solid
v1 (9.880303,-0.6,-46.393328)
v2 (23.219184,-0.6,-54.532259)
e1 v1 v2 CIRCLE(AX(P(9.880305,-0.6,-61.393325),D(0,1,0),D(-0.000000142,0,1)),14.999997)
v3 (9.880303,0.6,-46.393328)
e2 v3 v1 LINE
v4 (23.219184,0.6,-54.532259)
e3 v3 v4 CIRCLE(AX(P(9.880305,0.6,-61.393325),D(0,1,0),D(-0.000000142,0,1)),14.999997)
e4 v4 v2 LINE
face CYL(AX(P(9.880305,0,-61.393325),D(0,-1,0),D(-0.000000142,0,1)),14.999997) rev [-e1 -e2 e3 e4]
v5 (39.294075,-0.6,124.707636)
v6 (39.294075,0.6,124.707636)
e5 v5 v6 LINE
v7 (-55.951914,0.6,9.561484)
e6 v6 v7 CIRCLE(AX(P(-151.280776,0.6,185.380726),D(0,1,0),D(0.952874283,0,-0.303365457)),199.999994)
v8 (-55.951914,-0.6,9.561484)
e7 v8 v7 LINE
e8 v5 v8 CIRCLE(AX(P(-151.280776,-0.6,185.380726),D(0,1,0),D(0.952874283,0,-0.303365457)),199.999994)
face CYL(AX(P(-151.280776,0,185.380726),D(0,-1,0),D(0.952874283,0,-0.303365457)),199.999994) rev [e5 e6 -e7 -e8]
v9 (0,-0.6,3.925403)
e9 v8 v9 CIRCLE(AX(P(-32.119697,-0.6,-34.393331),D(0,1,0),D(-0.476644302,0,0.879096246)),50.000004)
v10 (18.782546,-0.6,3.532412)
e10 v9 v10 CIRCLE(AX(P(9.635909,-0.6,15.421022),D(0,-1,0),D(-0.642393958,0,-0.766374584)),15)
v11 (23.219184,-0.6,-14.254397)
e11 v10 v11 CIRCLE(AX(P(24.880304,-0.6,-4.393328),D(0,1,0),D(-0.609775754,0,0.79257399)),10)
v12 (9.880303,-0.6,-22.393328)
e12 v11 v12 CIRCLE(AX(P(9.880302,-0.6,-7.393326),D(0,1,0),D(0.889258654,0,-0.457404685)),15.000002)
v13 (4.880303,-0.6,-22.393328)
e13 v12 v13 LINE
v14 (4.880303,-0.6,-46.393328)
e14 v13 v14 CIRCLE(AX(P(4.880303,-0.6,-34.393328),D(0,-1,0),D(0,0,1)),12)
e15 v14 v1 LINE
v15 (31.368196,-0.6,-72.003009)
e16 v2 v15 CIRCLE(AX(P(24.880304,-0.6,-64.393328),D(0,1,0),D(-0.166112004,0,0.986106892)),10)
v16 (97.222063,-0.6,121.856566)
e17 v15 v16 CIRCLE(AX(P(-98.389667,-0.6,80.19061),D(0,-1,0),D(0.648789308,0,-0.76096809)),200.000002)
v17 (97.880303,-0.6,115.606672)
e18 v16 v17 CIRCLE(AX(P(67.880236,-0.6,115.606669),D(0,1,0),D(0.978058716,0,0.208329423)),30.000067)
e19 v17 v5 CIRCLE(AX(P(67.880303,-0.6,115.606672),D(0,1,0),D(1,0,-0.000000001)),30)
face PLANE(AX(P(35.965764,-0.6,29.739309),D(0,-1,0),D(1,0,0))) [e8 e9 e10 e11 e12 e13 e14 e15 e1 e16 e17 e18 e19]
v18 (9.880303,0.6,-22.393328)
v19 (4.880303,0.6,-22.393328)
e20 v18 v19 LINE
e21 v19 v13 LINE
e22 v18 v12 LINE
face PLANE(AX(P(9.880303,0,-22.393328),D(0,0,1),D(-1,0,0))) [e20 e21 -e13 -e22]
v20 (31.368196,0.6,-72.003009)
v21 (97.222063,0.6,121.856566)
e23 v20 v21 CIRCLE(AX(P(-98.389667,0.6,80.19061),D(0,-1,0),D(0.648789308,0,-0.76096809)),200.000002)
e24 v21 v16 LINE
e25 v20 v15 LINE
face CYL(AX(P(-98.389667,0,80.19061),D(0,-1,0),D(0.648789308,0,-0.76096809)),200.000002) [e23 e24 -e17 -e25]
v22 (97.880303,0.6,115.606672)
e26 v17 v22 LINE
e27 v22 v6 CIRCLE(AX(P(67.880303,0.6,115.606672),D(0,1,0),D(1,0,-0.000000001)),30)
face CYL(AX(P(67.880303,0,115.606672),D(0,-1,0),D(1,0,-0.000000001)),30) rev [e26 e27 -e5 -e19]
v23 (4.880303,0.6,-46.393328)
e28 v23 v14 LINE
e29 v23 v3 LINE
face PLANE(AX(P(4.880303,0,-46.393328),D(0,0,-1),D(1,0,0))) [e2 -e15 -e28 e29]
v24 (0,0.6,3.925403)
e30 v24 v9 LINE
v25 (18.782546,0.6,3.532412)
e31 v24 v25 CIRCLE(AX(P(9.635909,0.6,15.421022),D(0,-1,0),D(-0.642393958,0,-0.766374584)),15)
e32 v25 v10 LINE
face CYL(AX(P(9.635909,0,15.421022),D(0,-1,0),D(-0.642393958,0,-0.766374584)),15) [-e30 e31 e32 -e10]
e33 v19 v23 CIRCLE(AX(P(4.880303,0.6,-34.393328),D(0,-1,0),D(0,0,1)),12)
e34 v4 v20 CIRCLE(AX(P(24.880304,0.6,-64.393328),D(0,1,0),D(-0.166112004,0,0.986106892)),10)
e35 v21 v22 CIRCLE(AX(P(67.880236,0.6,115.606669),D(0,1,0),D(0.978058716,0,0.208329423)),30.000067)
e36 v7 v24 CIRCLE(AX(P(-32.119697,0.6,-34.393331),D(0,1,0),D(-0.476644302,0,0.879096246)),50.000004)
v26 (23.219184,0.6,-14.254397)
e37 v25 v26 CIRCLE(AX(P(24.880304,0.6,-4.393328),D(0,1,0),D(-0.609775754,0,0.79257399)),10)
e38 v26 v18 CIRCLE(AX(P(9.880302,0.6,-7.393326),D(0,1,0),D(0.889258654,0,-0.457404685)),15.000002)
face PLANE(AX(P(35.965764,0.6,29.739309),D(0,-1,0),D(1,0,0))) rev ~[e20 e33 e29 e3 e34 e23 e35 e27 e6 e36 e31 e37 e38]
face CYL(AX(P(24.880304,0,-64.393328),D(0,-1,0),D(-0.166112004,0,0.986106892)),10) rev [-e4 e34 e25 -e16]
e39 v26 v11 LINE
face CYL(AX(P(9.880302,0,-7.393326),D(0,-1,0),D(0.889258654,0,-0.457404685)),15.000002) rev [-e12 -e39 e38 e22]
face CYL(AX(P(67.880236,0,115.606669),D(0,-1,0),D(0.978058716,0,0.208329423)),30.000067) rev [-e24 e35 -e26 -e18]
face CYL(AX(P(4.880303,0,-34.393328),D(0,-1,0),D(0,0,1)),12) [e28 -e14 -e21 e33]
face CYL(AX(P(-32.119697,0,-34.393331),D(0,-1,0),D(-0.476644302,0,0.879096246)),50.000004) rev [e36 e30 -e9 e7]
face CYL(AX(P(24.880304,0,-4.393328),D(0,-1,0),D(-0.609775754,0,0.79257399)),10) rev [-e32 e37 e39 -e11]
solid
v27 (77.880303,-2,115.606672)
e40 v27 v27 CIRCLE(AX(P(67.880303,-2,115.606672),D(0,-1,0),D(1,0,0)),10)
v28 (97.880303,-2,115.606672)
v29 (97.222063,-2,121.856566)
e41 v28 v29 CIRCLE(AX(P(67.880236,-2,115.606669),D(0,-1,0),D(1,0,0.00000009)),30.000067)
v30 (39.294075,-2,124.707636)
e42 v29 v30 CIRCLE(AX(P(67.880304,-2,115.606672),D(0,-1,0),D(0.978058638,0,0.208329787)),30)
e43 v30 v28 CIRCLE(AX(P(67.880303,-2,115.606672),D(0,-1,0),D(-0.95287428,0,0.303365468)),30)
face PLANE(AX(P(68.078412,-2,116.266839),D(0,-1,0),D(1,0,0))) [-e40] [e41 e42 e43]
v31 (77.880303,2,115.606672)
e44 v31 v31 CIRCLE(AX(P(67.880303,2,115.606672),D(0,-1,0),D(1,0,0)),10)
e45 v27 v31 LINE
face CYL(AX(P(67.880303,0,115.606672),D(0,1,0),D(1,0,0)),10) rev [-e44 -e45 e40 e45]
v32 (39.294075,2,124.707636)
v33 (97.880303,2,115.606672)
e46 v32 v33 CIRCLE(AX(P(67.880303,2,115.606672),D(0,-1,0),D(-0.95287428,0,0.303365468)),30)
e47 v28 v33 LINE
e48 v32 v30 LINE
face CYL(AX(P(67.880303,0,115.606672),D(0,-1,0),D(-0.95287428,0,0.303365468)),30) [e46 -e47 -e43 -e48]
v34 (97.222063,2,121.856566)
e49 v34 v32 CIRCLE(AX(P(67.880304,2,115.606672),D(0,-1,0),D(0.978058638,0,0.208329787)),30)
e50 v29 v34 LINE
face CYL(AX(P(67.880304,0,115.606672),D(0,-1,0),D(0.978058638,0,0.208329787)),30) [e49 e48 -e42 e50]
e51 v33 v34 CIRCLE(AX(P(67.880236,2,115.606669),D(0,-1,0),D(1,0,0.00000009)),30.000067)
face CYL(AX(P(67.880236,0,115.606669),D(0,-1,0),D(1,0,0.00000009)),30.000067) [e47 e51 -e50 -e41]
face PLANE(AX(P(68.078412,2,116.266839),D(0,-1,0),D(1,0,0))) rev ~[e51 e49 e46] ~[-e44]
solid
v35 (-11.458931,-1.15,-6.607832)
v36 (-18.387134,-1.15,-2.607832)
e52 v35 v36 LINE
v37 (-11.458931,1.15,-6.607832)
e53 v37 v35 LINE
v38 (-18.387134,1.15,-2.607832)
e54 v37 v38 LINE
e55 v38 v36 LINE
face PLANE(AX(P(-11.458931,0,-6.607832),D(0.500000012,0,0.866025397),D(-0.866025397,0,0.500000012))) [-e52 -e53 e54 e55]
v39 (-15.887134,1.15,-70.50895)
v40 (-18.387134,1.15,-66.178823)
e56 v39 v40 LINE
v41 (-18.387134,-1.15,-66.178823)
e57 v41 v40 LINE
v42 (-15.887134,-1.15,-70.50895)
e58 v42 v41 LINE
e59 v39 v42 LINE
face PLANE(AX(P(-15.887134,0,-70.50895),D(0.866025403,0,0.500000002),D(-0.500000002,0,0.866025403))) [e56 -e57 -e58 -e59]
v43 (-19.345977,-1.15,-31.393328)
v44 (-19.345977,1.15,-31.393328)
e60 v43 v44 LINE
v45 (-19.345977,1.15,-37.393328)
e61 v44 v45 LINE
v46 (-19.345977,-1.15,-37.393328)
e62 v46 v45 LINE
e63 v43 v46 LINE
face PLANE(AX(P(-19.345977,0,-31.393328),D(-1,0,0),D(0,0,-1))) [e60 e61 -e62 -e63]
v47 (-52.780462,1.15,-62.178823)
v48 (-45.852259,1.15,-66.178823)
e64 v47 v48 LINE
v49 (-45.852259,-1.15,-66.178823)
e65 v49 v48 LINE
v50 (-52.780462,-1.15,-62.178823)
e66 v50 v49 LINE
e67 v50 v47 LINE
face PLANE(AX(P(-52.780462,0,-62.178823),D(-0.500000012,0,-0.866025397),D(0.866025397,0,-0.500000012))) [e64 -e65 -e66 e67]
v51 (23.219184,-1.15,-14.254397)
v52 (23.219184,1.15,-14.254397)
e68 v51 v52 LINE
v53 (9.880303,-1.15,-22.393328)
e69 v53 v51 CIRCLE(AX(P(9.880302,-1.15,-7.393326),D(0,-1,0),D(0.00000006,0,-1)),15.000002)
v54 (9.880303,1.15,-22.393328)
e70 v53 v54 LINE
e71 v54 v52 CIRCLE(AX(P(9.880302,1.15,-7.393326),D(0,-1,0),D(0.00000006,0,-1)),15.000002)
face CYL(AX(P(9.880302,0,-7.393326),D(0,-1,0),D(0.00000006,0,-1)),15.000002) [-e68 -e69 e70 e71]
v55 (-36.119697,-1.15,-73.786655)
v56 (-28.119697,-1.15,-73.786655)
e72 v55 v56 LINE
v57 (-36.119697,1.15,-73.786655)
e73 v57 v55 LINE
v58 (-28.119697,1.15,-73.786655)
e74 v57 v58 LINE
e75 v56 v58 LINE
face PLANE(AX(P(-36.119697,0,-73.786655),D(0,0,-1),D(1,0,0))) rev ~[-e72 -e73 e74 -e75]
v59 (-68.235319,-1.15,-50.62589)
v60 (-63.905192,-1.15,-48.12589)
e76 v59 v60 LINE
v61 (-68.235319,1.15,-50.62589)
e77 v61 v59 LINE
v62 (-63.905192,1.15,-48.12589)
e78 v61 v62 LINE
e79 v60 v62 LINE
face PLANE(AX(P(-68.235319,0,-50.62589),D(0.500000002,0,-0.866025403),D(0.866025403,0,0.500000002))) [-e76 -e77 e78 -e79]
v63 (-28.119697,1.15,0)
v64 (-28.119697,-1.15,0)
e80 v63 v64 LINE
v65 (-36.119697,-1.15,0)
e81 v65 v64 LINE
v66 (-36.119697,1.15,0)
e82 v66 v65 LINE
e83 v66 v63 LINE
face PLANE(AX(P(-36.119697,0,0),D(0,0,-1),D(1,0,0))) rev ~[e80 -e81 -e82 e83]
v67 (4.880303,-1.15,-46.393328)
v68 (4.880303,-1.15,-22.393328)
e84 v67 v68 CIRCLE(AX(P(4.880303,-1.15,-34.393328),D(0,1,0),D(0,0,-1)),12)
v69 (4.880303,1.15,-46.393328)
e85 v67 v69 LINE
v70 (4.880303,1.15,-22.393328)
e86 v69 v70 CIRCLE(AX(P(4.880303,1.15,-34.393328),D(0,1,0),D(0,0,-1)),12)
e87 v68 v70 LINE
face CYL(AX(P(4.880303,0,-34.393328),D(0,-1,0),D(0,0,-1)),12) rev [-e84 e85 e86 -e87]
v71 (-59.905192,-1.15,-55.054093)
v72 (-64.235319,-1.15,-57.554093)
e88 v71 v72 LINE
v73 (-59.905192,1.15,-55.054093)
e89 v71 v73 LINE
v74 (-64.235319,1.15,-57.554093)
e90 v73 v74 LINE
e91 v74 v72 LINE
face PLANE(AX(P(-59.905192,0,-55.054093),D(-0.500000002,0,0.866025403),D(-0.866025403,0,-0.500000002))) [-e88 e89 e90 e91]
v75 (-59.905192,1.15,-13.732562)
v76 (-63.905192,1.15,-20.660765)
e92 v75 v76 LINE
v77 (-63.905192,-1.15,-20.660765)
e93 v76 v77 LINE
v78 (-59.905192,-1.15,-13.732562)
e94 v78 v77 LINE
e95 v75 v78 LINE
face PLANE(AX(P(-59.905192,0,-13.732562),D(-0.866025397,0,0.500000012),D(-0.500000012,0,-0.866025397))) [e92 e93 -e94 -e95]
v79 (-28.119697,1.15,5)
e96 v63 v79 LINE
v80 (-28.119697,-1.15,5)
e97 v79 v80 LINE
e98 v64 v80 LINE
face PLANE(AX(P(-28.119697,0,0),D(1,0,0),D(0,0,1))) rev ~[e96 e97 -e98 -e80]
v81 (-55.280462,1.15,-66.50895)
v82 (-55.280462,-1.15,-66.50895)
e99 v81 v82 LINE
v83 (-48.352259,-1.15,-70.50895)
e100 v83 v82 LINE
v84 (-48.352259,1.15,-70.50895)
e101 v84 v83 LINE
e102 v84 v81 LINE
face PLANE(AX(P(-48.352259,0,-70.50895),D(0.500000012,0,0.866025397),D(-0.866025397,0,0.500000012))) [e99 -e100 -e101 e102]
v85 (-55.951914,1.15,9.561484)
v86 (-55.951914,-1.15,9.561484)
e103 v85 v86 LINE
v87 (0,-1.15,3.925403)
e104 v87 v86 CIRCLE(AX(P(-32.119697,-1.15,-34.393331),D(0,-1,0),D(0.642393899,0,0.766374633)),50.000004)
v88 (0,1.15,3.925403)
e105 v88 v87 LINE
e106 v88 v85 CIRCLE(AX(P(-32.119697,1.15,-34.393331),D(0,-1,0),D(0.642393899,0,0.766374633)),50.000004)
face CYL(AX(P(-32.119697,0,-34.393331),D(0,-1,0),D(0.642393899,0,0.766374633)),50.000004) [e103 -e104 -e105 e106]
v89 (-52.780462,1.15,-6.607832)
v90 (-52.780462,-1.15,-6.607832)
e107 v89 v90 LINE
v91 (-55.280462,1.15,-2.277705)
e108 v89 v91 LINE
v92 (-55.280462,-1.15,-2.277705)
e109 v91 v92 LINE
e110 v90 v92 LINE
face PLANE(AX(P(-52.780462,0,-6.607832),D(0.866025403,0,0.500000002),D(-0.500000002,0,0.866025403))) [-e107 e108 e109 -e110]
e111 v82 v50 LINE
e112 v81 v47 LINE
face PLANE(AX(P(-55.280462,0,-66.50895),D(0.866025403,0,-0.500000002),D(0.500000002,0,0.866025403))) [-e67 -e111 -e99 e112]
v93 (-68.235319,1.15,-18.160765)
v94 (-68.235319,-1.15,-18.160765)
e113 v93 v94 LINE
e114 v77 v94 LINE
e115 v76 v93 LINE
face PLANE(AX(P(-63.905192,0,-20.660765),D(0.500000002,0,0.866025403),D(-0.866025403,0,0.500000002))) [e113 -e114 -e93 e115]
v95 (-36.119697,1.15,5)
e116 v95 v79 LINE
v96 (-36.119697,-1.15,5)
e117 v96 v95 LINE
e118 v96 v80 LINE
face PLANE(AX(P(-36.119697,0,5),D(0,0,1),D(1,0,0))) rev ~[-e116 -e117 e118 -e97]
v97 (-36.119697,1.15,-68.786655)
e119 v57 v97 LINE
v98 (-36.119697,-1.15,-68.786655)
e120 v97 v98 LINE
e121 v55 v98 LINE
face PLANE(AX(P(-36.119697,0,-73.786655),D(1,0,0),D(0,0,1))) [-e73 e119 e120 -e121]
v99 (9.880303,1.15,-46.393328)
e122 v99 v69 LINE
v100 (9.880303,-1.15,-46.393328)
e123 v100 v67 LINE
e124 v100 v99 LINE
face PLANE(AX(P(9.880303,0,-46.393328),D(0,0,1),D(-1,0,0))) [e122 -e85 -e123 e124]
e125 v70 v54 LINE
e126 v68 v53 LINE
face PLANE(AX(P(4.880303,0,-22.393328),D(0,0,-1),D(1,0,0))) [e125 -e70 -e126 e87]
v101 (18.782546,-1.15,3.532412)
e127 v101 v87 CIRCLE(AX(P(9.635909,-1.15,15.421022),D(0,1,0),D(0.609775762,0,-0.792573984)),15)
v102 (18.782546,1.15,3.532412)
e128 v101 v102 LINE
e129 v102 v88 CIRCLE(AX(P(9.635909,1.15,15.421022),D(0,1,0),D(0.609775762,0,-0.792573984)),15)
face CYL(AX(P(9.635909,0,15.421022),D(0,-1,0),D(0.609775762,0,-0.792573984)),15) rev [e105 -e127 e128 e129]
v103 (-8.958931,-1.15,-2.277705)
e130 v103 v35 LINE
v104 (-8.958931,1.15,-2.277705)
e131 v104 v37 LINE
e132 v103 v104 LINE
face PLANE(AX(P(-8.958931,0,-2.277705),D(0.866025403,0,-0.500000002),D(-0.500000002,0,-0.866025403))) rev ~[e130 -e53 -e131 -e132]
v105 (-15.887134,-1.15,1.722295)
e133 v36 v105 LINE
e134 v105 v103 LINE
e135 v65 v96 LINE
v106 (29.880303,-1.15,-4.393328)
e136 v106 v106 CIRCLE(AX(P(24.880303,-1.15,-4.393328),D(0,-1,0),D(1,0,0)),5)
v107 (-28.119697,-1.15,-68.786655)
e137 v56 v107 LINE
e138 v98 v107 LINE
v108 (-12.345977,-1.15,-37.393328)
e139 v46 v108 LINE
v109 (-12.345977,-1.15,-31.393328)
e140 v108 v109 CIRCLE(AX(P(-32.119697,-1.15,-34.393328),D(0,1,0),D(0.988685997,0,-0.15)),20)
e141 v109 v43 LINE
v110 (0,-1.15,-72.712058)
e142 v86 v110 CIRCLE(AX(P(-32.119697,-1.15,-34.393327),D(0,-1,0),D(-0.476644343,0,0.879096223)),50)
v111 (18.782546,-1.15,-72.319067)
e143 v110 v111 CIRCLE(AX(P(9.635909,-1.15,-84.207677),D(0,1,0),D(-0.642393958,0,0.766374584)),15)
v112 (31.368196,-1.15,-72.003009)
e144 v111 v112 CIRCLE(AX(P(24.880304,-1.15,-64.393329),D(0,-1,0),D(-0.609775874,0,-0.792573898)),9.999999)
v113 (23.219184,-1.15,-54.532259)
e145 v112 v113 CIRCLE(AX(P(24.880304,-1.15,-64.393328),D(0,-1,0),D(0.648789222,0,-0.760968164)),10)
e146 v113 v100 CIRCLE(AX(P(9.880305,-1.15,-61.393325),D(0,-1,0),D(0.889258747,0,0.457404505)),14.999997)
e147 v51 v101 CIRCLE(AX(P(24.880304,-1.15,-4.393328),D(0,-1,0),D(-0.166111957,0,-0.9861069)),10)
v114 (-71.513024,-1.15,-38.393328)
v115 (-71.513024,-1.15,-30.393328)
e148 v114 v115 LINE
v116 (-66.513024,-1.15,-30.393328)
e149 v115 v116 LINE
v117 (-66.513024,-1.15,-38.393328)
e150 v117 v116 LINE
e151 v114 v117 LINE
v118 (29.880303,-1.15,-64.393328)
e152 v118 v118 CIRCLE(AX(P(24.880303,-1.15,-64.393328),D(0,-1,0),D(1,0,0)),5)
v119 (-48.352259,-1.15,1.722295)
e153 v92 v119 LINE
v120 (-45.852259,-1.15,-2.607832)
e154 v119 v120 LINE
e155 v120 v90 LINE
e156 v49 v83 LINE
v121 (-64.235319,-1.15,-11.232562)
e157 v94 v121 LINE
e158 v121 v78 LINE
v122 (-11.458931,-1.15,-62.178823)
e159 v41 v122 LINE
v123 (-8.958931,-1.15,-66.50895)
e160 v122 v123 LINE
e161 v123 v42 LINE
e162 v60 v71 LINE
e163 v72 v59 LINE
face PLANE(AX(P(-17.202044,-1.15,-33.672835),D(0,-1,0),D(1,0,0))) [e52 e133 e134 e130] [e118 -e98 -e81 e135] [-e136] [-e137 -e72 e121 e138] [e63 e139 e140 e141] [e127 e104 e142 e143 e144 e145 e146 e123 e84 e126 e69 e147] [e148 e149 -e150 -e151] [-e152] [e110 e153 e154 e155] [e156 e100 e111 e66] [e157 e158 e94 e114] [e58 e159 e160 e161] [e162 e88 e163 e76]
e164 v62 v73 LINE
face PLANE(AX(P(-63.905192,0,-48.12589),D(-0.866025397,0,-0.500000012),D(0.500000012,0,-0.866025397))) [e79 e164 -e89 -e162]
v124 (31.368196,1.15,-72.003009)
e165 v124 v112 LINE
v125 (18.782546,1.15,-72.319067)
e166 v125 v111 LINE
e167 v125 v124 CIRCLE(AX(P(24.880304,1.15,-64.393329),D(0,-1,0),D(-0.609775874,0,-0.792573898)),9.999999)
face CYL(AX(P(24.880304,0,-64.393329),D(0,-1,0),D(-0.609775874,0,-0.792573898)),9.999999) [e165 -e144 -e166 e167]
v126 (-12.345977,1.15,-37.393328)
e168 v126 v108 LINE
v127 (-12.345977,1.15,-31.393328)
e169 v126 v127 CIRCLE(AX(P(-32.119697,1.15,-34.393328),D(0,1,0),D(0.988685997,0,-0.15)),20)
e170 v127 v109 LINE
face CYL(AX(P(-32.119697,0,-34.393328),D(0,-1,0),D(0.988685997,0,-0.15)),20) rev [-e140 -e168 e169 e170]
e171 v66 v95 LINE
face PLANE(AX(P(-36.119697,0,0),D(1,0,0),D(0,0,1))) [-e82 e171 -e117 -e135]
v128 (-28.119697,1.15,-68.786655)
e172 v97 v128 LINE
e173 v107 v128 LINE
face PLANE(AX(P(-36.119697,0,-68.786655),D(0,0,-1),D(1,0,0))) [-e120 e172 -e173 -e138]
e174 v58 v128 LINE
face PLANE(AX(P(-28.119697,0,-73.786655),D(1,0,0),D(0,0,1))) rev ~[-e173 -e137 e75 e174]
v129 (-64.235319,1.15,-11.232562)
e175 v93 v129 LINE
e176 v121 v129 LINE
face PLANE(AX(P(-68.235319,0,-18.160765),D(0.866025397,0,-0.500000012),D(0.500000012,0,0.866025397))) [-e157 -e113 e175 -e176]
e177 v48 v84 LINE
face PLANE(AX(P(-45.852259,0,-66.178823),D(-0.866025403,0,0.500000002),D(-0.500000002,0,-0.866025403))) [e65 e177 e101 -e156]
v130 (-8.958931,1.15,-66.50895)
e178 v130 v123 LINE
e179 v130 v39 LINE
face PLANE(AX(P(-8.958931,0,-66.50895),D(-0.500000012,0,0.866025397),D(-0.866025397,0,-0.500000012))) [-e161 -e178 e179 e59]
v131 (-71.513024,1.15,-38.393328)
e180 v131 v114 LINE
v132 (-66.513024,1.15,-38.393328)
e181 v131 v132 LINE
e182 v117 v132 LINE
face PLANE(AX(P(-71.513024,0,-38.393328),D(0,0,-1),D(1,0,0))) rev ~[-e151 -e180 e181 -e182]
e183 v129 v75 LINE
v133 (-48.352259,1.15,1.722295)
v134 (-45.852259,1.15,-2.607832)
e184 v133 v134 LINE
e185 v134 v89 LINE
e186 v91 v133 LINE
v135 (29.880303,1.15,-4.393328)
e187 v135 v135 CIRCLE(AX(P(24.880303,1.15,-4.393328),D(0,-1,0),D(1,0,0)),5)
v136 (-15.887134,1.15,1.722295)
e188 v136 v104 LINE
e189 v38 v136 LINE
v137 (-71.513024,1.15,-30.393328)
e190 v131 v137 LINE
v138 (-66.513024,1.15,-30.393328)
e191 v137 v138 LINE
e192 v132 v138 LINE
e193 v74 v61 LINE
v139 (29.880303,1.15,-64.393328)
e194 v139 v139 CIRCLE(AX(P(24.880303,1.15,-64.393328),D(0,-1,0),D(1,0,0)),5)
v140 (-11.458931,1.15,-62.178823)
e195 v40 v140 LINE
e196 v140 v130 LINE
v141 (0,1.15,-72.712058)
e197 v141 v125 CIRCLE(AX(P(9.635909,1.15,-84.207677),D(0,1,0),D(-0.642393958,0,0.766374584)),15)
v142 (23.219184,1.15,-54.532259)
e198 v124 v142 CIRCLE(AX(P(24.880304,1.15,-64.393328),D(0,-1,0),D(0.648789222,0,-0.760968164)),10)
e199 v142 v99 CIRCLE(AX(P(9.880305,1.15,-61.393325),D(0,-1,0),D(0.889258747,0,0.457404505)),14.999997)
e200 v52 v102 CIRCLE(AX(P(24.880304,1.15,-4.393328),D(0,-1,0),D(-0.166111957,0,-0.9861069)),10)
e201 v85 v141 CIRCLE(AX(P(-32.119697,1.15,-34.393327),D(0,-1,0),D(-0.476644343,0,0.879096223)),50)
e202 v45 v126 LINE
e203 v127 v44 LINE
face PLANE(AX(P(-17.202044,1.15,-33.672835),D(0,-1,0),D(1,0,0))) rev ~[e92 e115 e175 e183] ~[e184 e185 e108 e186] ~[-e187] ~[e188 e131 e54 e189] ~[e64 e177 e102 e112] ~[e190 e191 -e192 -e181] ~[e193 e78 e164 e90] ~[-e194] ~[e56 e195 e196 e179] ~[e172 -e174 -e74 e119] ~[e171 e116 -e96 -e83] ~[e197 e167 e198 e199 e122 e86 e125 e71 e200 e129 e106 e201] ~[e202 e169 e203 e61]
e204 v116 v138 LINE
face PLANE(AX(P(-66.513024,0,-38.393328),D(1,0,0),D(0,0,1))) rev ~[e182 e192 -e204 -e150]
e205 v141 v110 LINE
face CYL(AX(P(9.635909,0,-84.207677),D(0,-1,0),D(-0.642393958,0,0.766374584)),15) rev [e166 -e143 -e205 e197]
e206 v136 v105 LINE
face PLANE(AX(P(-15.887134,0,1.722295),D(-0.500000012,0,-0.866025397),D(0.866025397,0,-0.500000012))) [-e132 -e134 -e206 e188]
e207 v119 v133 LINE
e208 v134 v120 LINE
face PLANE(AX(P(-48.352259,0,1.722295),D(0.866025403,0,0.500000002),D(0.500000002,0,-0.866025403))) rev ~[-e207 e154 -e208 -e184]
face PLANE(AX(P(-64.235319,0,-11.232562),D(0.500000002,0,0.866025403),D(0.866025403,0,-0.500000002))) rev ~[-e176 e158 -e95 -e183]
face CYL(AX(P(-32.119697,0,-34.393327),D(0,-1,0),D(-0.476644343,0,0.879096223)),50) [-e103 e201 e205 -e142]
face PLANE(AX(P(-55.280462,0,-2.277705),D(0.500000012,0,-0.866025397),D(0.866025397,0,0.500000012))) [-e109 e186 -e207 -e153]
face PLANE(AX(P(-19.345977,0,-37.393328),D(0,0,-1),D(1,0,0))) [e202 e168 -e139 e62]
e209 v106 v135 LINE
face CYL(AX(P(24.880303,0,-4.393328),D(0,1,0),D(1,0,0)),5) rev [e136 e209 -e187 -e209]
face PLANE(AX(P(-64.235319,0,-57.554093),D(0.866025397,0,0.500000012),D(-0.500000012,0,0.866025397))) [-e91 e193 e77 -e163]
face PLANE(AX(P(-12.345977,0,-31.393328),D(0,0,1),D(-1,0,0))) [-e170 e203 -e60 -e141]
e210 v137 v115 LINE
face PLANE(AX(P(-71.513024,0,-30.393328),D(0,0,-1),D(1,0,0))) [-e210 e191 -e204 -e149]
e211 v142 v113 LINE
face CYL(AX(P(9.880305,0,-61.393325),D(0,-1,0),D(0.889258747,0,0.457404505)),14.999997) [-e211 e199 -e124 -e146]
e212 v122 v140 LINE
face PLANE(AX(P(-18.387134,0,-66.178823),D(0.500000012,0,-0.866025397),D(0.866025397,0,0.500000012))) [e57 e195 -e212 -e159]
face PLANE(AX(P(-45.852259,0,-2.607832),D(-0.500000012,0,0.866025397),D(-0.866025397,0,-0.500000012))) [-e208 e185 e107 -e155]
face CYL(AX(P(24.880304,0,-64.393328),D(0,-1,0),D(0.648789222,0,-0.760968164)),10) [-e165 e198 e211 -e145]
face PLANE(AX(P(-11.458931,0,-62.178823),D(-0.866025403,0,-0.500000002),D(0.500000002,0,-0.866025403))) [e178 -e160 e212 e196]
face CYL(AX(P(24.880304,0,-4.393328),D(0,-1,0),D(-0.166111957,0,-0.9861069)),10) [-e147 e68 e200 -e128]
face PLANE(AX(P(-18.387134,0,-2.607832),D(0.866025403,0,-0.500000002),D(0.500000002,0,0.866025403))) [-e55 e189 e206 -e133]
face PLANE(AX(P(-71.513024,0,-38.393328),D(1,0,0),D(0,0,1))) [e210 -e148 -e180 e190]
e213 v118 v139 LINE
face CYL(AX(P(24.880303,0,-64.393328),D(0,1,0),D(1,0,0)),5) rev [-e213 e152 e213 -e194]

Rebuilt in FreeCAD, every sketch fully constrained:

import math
import FreeCAD as App
import Part
import Sketcher

V = App.Vector
Q = App.Units.Quantity

doc = App.newDocument("Part")
body = doc.addObject("PartDesign::Body", "Body")

sketch1 = body.newObject("Sketcher::SketchObject", "Sketch")
sketch1.AttachmentSupport = (doc.getObject("XZ_Plane"), [""])
sketch1.MapMode = "FlatFace"
sketch1.addGeometry(Part.ArcOfCircle(Part.Circle(V(9.6, 15.4, 0), V(0, 0, 1), 15), math.radians(-130), math.radians(-52)), False)
sketch1.addGeometry(Part.ArcOfCircle(Part.Circle(V(-32.1, -34.4, 0), V(0, 0, 1), 50), math.radians(50), math.radians(118)), False)
sketch1.addGeometry(Part.ArcOfCircle(Part.Circle(V(-32.1, -34.4, 0), V(0, 0, 1), 50), math.radians(118), math.radians(310)), False)
sketch1.addGeometry(Part.ArcOfCircle(Part.Circle(V(9.6, -84.2, 0), V(0, 0, 1), 15), math.radians(52), math.radians(130)), False)
sketch1.addGeometry(Part.ArcOfCircle(Part.Circle(V(24.9, -64.4, 0), V(0, 0, 1), 10), math.radians(-128), math.radians(-50)), False)
sketch1.addGeometry(Part.ArcOfCircle(Part.Circle(V(24.9, -64.4, 0), V(0, 0, 1), 10), math.radians(-50), math.radians(100)), False)
sketch1.addGeometry(Part.ArcOfCircle(Part.Circle(V(9.9, -61.4, 0), V(0, 0, 1), 15), math.radians(27), math.radians(90)), False)
sketch1.addGeometry(Part.LineSegment(V(9.9, -46.4, 0), V(4.9, -46.4, 0)), False)
sketch1.addGeometry(Part.ArcOfCircle(Part.Circle(V(4.9, -34.4, 0), V(0, 0, 1), 12), math.radians(90), math.radians(270)), False)
sketch1.addGeometry(Part.LineSegment(V(4.9, -22.4, 0), V(9.9, -22.4, 0)), False)
sketch1.addGeometry(Part.ArcOfCircle(Part.Circle(V(9.9, -7.4, 0), V(0, 0, 1), 15), math.radians(-90), math.radians(-27)), False)
sketch1.addGeometry(Part.ArcOfCircle(Part.Circle(V(24.9, -4.4, 0), V(0, 0, 1), 10), math.radians(-100), math.radians(128)), False)
sketch1.addGeometry(Part.LineSegment(V(-45.9, -66.2, 0), V(-48.4, -70.5, 0)), False)
sketch1.addGeometry(Part.LineSegment(V(-48.4, -70.5, 0), V(-55.3, -66.5, 0)), False)
sketch1.addGeometry(Part.LineSegment(V(-55.3, -66.5, 0), V(-52.8, -62.2, 0)), False)
sketch1.addGeometry(Part.LineSegment(V(-52.8, -62.2, 0), V(-45.9, -66.2, 0)), False)
sketch1.addGeometry(Part.LineSegment(V(-28.1, -73.8, 0), V(-36.1, -73.8, 0)), False)
sketch1.addGeometry(Part.LineSegment(V(-36.1, -73.8, 0), V(-36.1, -68.8, 0)), False)
sketch1.addGeometry(Part.LineSegment(V(-36.1, -68.8, 0), V(-28.1, -68.8, 0)), False)
sketch1.addGeometry(Part.LineSegment(V(-28.1, -68.8, 0), V(-28.1, -73.8, 0)), False)
sketch1.addGeometry(Part.LineSegment(V(-59.9, -55.1, 0), V(-64.2, -57.6, 0)), False)
sketch1.addGeometry(Part.LineSegment(V(-64.2, -57.6, 0), V(-68.2, -50.6, 0)), False)
sketch1.addGeometry(Part.LineSegment(V(-68.2, -50.6, 0), V(-63.9, -48.1, 0)), False)
sketch1.addGeometry(Part.LineSegment(V(-63.9, -48.1, 0), V(-59.9, -55.1, 0)), False)
sketch1.addGeometry(Part.LineSegment(V(-66.5, -38.4, 0), V(-71.5, -38.4, 0)), False)
sketch1.addGeometry(Part.LineSegment(V(-71.5, -38.4, 0), V(-71.5, -30.4, 0)), False)
sketch1.addGeometry(Part.LineSegment(V(-71.5, -30.4, 0), V(-66.5, -30.4, 0)), False)
sketch1.addGeometry(Part.LineSegment(V(-66.5, -30.4, 0), V(-66.5, -38.4, 0)), False)
sketch1.addGeometry(Part.LineSegment(V(-19.3, -37.4, 0), V(-12.3, -37.4, 0)), False)
sketch1.addGeometry(Part.ArcOfCircle(Part.Circle(V(-32.1, -34.4, 0), V(0, 0, 1), 20), math.radians(9), math.radians(351)), False)
sketch1.addGeometry(Part.LineSegment(V(-12.3, -31.4, 0), V(-19.3, -31.4, 0)), False)
sketch1.addGeometry(Part.LineSegment(V(-19.3, -31.4, 0), V(-19.3, -37.4, 0)), False)
sketch1.addGeometry(Part.LineSegment(V(-11.5, -62.2, 0), V(-9, -66.5, 0)), False)
sketch1.addGeometry(Part.LineSegment(V(-9, -66.5, 0), V(-15.9, -70.5, 0)), False)
sketch1.addGeometry(Part.LineSegment(V(-15.9, -70.5, 0), V(-18.4, -66.2, 0)), False)
sketch1.addGeometry(Part.LineSegment(V(-18.4, -66.2, 0), V(-11.5, -62.2, 0)), False)
sketch1.addGeometry(Part.Circle(V(24.9, -64.4, 0), V(0, 0, 1), 5), False)
sketch1.addGeometry(Part.LineSegment(V(-63.9, -20.7, 0), V(-68.2, -18.2, 0)), False)
sketch1.addGeometry(Part.LineSegment(V(-68.2, -18.2, 0), V(-64.2, -11.2, 0)), False)
sketch1.addGeometry(Part.LineSegment(V(-64.2, -11.2, 0), V(-59.9, -13.7, 0)), False)
sketch1.addGeometry(Part.LineSegment(V(-59.9, -13.7, 0), V(-63.9, -20.7, 0)), False)
sketch1.addGeometry(Part.LineSegment(V(-52.8, -6.6, 0), V(-55.3, -2.3, 0)), False)
sketch1.addGeometry(Part.LineSegment(V(-55.3, -2.3, 0), V(-48.4, 1.7, 0)), False)
sketch1.addGeometry(Part.LineSegment(V(-48.4, 1.7, 0), V(-45.9, -2.6, 0)), False)
sketch1.addGeometry(Part.LineSegment(V(-45.9, -2.6, 0), V(-52.8, -6.6, 0)), False)
sketch1.addGeometry(Part.LineSegment(V(-28.1, 0, 0), V(-36.1, 0, 0)), False)
sketch1.addGeometry(Part.LineSegment(V(-36.1, 0, 0), V(-36.1, 5, 0)), False)
sketch1.addGeometry(Part.LineSegment(V(-36.1, 5, 0), V(-28.1, 5, 0)), False)
sketch1.addGeometry(Part.LineSegment(V(-28.1, 5, 0), V(-28.1, 0, 0)), False)
sketch1.addGeometry(Part.LineSegment(V(-18.4, -2.6, 0), V(-15.9, 1.7, 0)), False)
sketch1.addGeometry(Part.LineSegment(V(-15.9, 1.7, 0), V(-9, -2.3, 0)), False)
sketch1.addGeometry(Part.LineSegment(V(-9, -2.3, 0), V(-11.5, -6.6, 0)), False)
sketch1.addGeometry(Part.LineSegment(V(-11.5, -6.6, 0), V(-18.4, -2.6, 0)), False)
sketch1.addGeometry(Part.Circle(V(24.9, -4.4, 0), V(0, 0, 1), 5), False)
sketch1.addConstraint(Sketcher.Constraint("Tangent", 0, 1, 1, 1))
sketch1.addConstraint(Sketcher.Constraint("Tangent", 1, 2, 2, 1))
sketch1.addConstraint(Sketcher.Constraint("Tangent", 2, 2, 3, 2))
sketch1.addConstraint(Sketcher.Constraint("Tangent", 3, 1, 4, 1))
sketch1.addConstraint(Sketcher.Constraint("Tangent", 4, 2, 5, 1))
sketch1.addConstraint(Sketcher.Constraint("Coincident", 5, 2, 6, 1))
sketch1.addConstraint(Sketcher.Constraint("Tangent", 6, 2, 7, 1))
sketch1.addConstraint(Sketcher.Constraint("Tangent", 7, 2, 8, 2))
sketch1.addConstraint(Sketcher.Constraint("Tangent", 8, 1, 9, 1))
sketch1.addConstraint(Sketcher.Constraint("Tangent", 9, 2, 10, 1))
sketch1.addConstraint(Sketcher.Constraint("Coincident", 10, 2, 11, 1))
sketch1.addConstraint(Sketcher.Constraint("Tangent", 11, 2, 0, 2))
sketch1.addConstraint(Sketcher.Constraint("Coincident", 12, 2, 13, 1))
sketch1.addConstraint(Sketcher.Constraint("Coincident", 13, 2, 14, 1))
sketch1.addConstraint(Sketcher.Constraint("Coincident", 14, 2, 15, 1))
sketch1.addConstraint(Sketcher.Constraint("Coincident", 15, 2, 12, 1))
sketch1.addConstraint(Sketcher.Constraint("Coincident", 16, 2, 17, 1))
sketch1.addConstraint(Sketcher.Constraint("Coincident", 17, 2, 18, 1))
sketch1.addConstraint(Sketcher.Constraint("Coincident", 18, 2, 19, 1))
sketch1.addConstraint(Sketcher.Constraint("Coincident", 19, 2, 16, 1))
sketch1.addConstraint(Sketcher.Constraint("Coincident", 20, 2, 21, 1))
sketch1.addConstraint(Sketcher.Constraint("Coincident", 21, 2, 22, 1))
sketch1.addConstraint(Sketcher.Constraint("Coincident", 22, 2, 23, 1))
sketch1.addConstraint(Sketcher.Constraint("Coincident", 23, 2, 20, 1))
sketch1.addConstraint(Sketcher.Constraint("Coincident", 24, 2, 25, 1))
sketch1.addConstraint(Sketcher.Constraint("Coincident", 25, 2, 26, 1))
sketch1.addConstraint(Sketcher.Constraint("Coincident", 26, 2, 27, 1))
sketch1.addConstraint(Sketcher.Constraint("Coincident", 27, 2, 24, 1))
sketch1.addConstraint(Sketcher.Constraint("Coincident", 28, 2, 29, 2))
sketch1.addConstraint(Sketcher.Constraint("Coincident", 29, 1, 30, 1))
sketch1.addConstraint(Sketcher.Constraint("Coincident", 30, 2, 31, 1))
sketch1.addConstraint(Sketcher.Constraint("Coincident", 31, 2, 28, 1))
sketch1.addConstraint(Sketcher.Constraint("Coincident", 32, 2, 33, 1))
sketch1.addConstraint(Sketcher.Constraint("Coincident", 33, 2, 34, 1))
sketch1.addConstraint(Sketcher.Constraint("Coincident", 34, 2, 35, 1))
sketch1.addConstraint(Sketcher.Constraint("Coincident", 35, 2, 32, 1))
sketch1.addConstraint(Sketcher.Constraint("Coincident", 37, 2, 38, 1))
sketch1.addConstraint(Sketcher.Constraint("Coincident", 38, 2, 39, 1))
sketch1.addConstraint(Sketcher.Constraint("Coincident", 39, 2, 40, 1))
sketch1.addConstraint(Sketcher.Constraint("Coincident", 40, 2, 37, 1))
sketch1.addConstraint(Sketcher.Constraint("Coincident", 41, 2, 42, 1))
sketch1.addConstraint(Sketcher.Constraint("Coincident", 42, 2, 43, 1))
sketch1.addConstraint(Sketcher.Constraint("Coincident", 43, 2, 44, 1))
sketch1.addConstraint(Sketcher.Constraint("Coincident", 44, 2, 41, 1))
sketch1.addConstraint(Sketcher.Constraint("Coincident", 45, 2, 46, 1))
sketch1.addConstraint(Sketcher.Constraint("Coincident", 46, 2, 47, 1))
sketch1.addConstraint(Sketcher.Constraint("Coincident", 47, 2, 48, 1))
sketch1.addConstraint(Sketcher.Constraint("Coincident", 48, 2, 45, 1))
sketch1.addConstraint(Sketcher.Constraint("Coincident", 49, 2, 50, 1))
sketch1.addConstraint(Sketcher.Constraint("Coincident", 50, 2, 51, 1))
sketch1.addConstraint(Sketcher.Constraint("Coincident", 51, 2, 52, 1))
sketch1.addConstraint(Sketcher.Constraint("Coincident", 52, 2, 49, 1))
sketch1.addConstraint(Sketcher.Constraint("Horizontal", 7))
sketch1.addConstraint(Sketcher.Constraint("Horizontal", 9))
sketch1.addConstraint(Sketcher.Constraint("Horizontal", 16))
sketch1.addConstraint(Sketcher.Constraint("Vertical", 17))
sketch1.addConstraint(Sketcher.Constraint("Horizontal", 18))
sketch1.addConstraint(Sketcher.Constraint("Vertical", 19))
sketch1.addConstraint(Sketcher.Constraint("Horizontal", 24))
sketch1.addConstraint(Sketcher.Constraint("Vertical", 25))
sketch1.addConstraint(Sketcher.Constraint("Horizontal", 26))
sketch1.addConstraint(Sketcher.Constraint("Vertical", 27))
sketch1.addConstraint(Sketcher.Constraint("Horizontal", 28))
sketch1.addConstraint(Sketcher.Constraint("Horizontal", 30))
sketch1.addConstraint(Sketcher.Constraint("Vertical", 31))
sketch1.addConstraint(Sketcher.Constraint("Horizontal", 45))
sketch1.addConstraint(Sketcher.Constraint("Vertical", 46))
sketch1.addConstraint(Sketcher.Constraint("Horizontal", 47))
sketch1.addConstraint(Sketcher.Constraint("Vertical", 48))
sketch1.addConstraint(Sketcher.Constraint("Coincident", 29, 3, 1, 3))
sketch1.addConstraint(Sketcher.Constraint("Coincident", 36, 3, 4, 3))
sketch1.addConstraint(Sketcher.Constraint("Coincident", 53, 3, 11, 3))
sketch1.addConstraint(Sketcher.Constraint("Equal", 0, 3))
sketch1.addConstraint(Sketcher.Constraint("Equal", 4, 5))
sketch1.addConstraint(Sketcher.Constraint("Equal", 5, 11))
sketch1.addConstraint(Sketcher.Constraint("Equal", 36, 53))
sketch1.addConstraint(Sketcher.Constraint("PointOnObject", 0, 1, -2))
sketch1.addConstraint(Sketcher.Constraint("PointOnObject", 2, 2, -2))
sketch1.addConstraint(Sketcher.Constraint("PointOnObject", 45, 2, -1))
sketch1.addConstraint(Sketcher.Constraint("Perpendicular", 12, 13))
sketch1.addConstraint(Sketcher.Constraint("Perpendicular", 13, 14))
sketch1.addConstraint(Sketcher.Constraint("Perpendicular", 14, 15))
sketch1.addConstraint(Sketcher.Constraint("Perpendicular", 20, 21))
sketch1.addConstraint(Sketcher.Constraint("Perpendicular", 21, 22))
sketch1.addConstraint(Sketcher.Constraint("Perpendicular", 22, 23))
sketch1.addConstraint(Sketcher.Constraint("Parallel", 23, 32))
sketch1.addConstraint(Sketcher.Constraint("Perpendicular", 32, 33))
sketch1.addConstraint(Sketcher.Constraint("Perpendicular", 33, 34))
sketch1.addConstraint(Sketcher.Constraint("Perpendicular", 34, 35))
sketch1.addConstraint(Sketcher.Constraint("Parallel", 15, 37))
sketch1.addConstraint(Sketcher.Constraint("Perpendicular", 37, 38))
sketch1.addConstraint(Sketcher.Constraint("Perpendicular", 38, 39))
sketch1.addConstraint(Sketcher.Constraint("Perpendicular", 39, 40))
sketch1.addConstraint(Sketcher.Constraint("Perpendicular", 35, 41))
sketch1.addConstraint(Sketcher.Constraint("Perpendicular", 41, 42))
sketch1.addConstraint(Sketcher.Constraint("Perpendicular", 42, 43))
sketch1.addConstraint(Sketcher.Constraint("Perpendicular", 43, 44))
sketch1.addConstraint(Sketcher.Constraint("Parallel", 40, 49))
sketch1.addConstraint(Sketcher.Constraint("Perpendicular", 49, 50))
sketch1.addConstraint(Sketcher.Constraint("Perpendicular", 50, 51))
sketch1.addConstraint(Sketcher.Constraint("Perpendicular", 51, 52))
sketch1.addConstraint(Sketcher.Constraint("Horizontal", 2, 3, 8, 3))
sketch1.addConstraint(Sketcher.Constraint("Horizontal", 8, 3, 29, 3))
sketch1.addConstraint(Sketcher.Constraint("Horizontal", 13, 2, 32, 2))
sketch1.addConstraint(Sketcher.Constraint("Horizontal", 12, 2, 33, 2))
sketch1.addConstraint(Sketcher.Constraint("Horizontal", 15, 2, 34, 2))
sketch1.addConstraint(Sketcher.Constraint("Horizontal", 42, 2, 49, 2))
sketch1.addConstraint(Sketcher.Constraint("Horizontal", 41, 2, 50, 2))
sketch1.addConstraint(Sketcher.Constraint("Horizontal", 44, 2, 51, 2))
sketch1.addConstraint(Sketcher.Constraint("Vertical", 5, 3, 11, 3))
sketch1.addConstraint(Sketcher.Constraint("Vertical", 10, 3, 6, 2))
sketch1.addConstraint(Sketcher.Constraint("Vertical", 5, 2, 10, 2))
sketch1.addConstraint(Sketcher.Constraint("Vertical", 28, 2, 29, 1))
sketch1.addConstraint(Sketcher.Constraint("Vertical", 21, 2, 37, 2))
sketch1.addConstraint(Sketcher.Constraint("Vertical", 20, 2, 38, 2))
sketch1.addConstraint(Sketcher.Constraint("Vertical", 23, 2, 39, 2))
sketch1.addConstraint(Sketcher.Constraint("Vertical", 13, 2, 41, 2))
sketch1.addConstraint(Sketcher.Constraint("Vertical", 12, 2, 42, 2))
sketch1.addConstraint(Sketcher.Constraint("Vertical", 15, 2, 43, 2))
sketch1.addConstraint(Sketcher.Constraint("Vertical", 17, 2, 45, 2))
sketch1.addConstraint(Sketcher.Constraint("Vertical", 19, 2, 47, 2))
sketch1.addConstraint(Sketcher.Constraint("Vertical", 33, 2, 49, 2))
sketch1.addConstraint(Sketcher.Constraint("Vertical", 32, 2, 50, 2))
sketch1.addConstraint(Sketcher.Constraint("Equal", 9, 24))
sketch1.addConstraint(Sketcher.Constraint("Equal", 26, 17))
sketch1.addConstraint(Sketcher.Constraint("Equal", 47, 25))
sketch1.addConstraint(Sketcher.Constraint("Equal", 19, 46))
sketch1.addConstraint(Sketcher.Constraint("Equal", 14, 20))
sketch1.addConstraint(Sketcher.Constraint("Equal", 15, 21))
sketch1.addConstraint(Sketcher.Constraint("Diameter", 36, 10.0))
sketch1.addConstraint(Sketcher.Constraint("Radius", 0, 15.0))
sketch1.addConstraint(Sketcher.Constraint("Radius", 2, 50.0))
sketch1.addConstraint(Sketcher.Constraint("Radius", 4, 9.999999))
sketch1.addConstraint(Sketcher.Constraint("Radius", 8, 12.0))
sketch1.addConstraint(Sketcher.Constraint("Radius", 29, 20.0))
sketch1.addConstraint(Sketcher.Constraint("DistanceX", 7, 2, 7, 1, 5.0))
sketch1.addConstraint(Sketcher.Constraint("DistanceX", 16, 2, 16, 1, 8.0))
sketch1.addConstraint(Sketcher.Constraint("DistanceX", 28, 1, 28, 2, 7.0))
sketch1.addConstraint(Sketcher.Constraint("DistanceY", 31, 2, 31, 1, 6.0))
sketch1.addConstraint(Sketcher.Constraint("Angle", 12, Q("-120 deg")))
sketch1.addConstraint(Sketcher.Constraint("Distance", 12, 5.0))
sketch1.addConstraint(Sketcher.Constraint("Distance", 13, 8.0))
sketch1.addConstraint(Sketcher.Constraint("Radius", 6, 14.999997))
sketch1.addConstraint(Sketcher.Constraint("DistanceX", -1, 1, 0, 3, 9.635909))
sketch1.addConstraint(Sketcher.Constraint("DistanceY", -1, 1, 0, 3, 15.421022))
sketch1.addConstraint(Sketcher.Constraint("DistanceY", 4, 3, -1, 1, 64.393329))
sketch1.addConstraint(Sketcher.Constraint("DistanceY", 4, 2, -1, 1, 72.003009))
sketch1.addConstraint(Sketcher.Constraint("DistanceY", 5, 2, -1, 1, 54.532259))
sketch1.addConstraint(Sketcher.Constraint("DistanceX", 12, 2, -1, 1, 48.352259))
sketch1.addConstraint(Sketcher.Constraint("DistanceY", 12, 2, -1, 1, 70.50895))
sketch1.addConstraint(Sketcher.Constraint("DistanceX", 20, 2, -1, 1, 64.235319))
sketch1.addConstraint(Sketcher.Constraint("DistanceY", 21, 2, -1, 1, 50.62589))
sketch1.addConstraint(Sketcher.Constraint("DistanceY", 25, 2, -1, 1, 30.393328))
sketch1.addConstraint(Sketcher.Constraint("DistanceX", 32, 2, -1, 1, 8.958931))
sketch1.addConstraint(Sketcher.Constraint("DistanceX", 1, 2, -1, 1, 55.951914))
sketch1.addConstraint(Sketcher.Constraint("DistanceX", 16, 2, -1, 1, 36.119697))
sketch1.addConstraint(Sketcher.Constraint("DistanceY", 16, 2, -1, 1, 73.786655))
sketch1.addConstraint(Sketcher.Constraint("DistanceX", 24, 2, -1, 1, 71.513024))
sketch1.addConstraint(Sketcher.Constraint("DistanceY", 37, 2, -1, 1, 18.160765))
sketch1.addConstraint(Sketcher.Constraint("DistanceY", 41, 2, -1, 1, 2.277705))
pad1 = body.newObject("PartDesign::Pad", "Pad")
pad1.Profile = sketch1
pad1.Length = 2.3
pad1.Midplane = True
body2 = doc.addObject("PartDesign::Body", "Body001")

sketch2 = body2.newObject("Sketcher::SketchObject", "Sketch001")
sketch2.AttachmentSupport = (doc.getObject("XZ_Plane001"), [""])
sketch2.MapMode = "FlatFace"
sketch2.addGeometry(Part.ArcOfCircle(Part.Circle(V(67.880304, 115.606672, 0), V(0, 0, 1), 30), math.radians(12.024491), math.radians(162.340147)), False)
sketch2.addGeometry(Part.ArcOfCircle(Part.Circle(V(67.880303, 115.606672, 0), V(0, 0, 1), 30), math.radians(162.340146), math.radians(360)), False)
sketch2.addGeometry(Part.ArcOfCircle(Part.Circle(V(67.880236, 115.606669, 0), V(0, 0, 1), 30.000067), math.radians(0.000005), math.radians(12.02447)), False)
sketch2.addGeometry(Part.Circle(V(67.880303, 115.606672, 0), V(0, 0, 1), 10), False)
sketch2.addConstraint(Sketcher.Constraint("Coincident", 0, 2, 1, 1))
sketch2.addConstraint(Sketcher.Constraint("Coincident", 1, 2, 2, 1))
sketch2.addConstraint(Sketcher.Constraint("Coincident", 2, 2, 0, 1))
sketch2.addConstraint(Sketcher.Constraint("Coincident", 1, 3, 0, 3))
sketch2.addConstraint(Sketcher.Constraint("Coincident", 3, 3, 0, 3))
sketch2.addConstraint(Sketcher.Constraint("Diameter", 3, 20.0))
sketch2.addConstraint(Sketcher.Constraint("Radius", 0, 30.0))
sketch2.addConstraint(Sketcher.Constraint("Radius", 2, 30.000067))
sketch2.addConstraint(Sketcher.Constraint("DistanceY", -1, 1, 2, 3, 115.606669))
sketch2.addConstraint(Sketcher.Constraint("DistanceX", 0, 2, 2, 3, 28.586161))
sketch2.addConstraint(Sketcher.Constraint("DistanceX", 2, 2, 1, 2, 0.65824))
sketch2.addConstraint(Sketcher.Constraint("DistanceX", -1, 1, 0, 3, 67.880304))
sketch2.addConstraint(Sketcher.Constraint("DistanceY", -1, 1, 1, 2, 115.606672))
pad2 = body2.newObject("PartDesign::Pad", "Pad001")
pad2.Profile = sketch2
pad2.Length = 4
pad2.Midplane = True
body3 = doc.addObject("PartDesign::Body", "Body002")

sketch3 = body3.newObject("Sketcher::SketchObject", "Sketch002")
sketch3.AttachmentSupport = (doc.getObject("XZ_Plane002"), [""])
sketch3.MapMode = "FlatFace"
sketch3.addGeometry(Part.ArcOfCircle(Part.Circle(V(-32, -34, 0), V(0, 0, 1), 50), math.radians(50), math.radians(118)), False)
sketch3.addGeometry(Part.ArcOfCircle(Part.Circle(V(10, 15, 0), V(0, 0, 1), 15), math.radians(-130), math.radians(-52)), False)
sketch3.addGeometry(Part.ArcOfCircle(Part.Circle(V(25, -4, 0), V(0, 0, 1), 10), math.radians(-100), math.radians(128)), False)
sketch3.addGeometry(Part.ArcOfCircle(Part.Circle(V(10, -7, 0), V(0, 0, 1), 15), math.radians(-90), math.radians(-27)), False)
sketch3.addGeometry(Part.LineSegment(V(10, -22, 0), V(5, -22, 0)), False)
sketch3.addGeometry(Part.ArcOfCircle(Part.Circle(V(5, -34, 0), V(0, 0, 1), 12), math.radians(90), math.radians(270)), False)
sketch3.addGeometry(Part.LineSegment(V(5, -46, 0), V(10, -46, 0)), False)
sketch3.addGeometry(Part.ArcOfCircle(Part.Circle(V(10, -61, 0), V(0, 0, 1), 15), math.radians(27), math.radians(90)), False)
sketch3.addGeometry(Part.ArcOfCircle(Part.Circle(V(25, -64, 0), V(0, 0, 1), 10), math.radians(-50), math.radians(100)), False)
sketch3.addGeometry(Part.ArcOfCircle(Part.Circle(V(-98, 80, 0), V(0, 0, 1), 200), math.radians(-50), math.radians(12)), False)
sketch3.addGeometry(Part.ArcOfCircle(Part.Circle(V(68, 116, 0), V(0, 0, 1), 30), math.radians(0), math.radians(12.02)), False)
sketch3.addGeometry(Part.ArcOfCircle(Part.Circle(V(68, 116, 0), V(0, 0, 1), 30), math.radians(162), math.radians(360)), False)
sketch3.addGeometry(Part.ArcOfCircle(Part.Circle(V(-151, 185, 0), V(0, 0, 1), 200), math.radians(-62), math.radians(-18)), False)
sketch3.addConstraint(Sketcher.Constraint("Tangent", 0, 1, 1, 1))
sketch3.addConstraint(Sketcher.Constraint("Tangent", 1, 2, 2, 2))
sketch3.addConstraint(Sketcher.Constraint("Coincident", 2, 1, 3, 2))
sketch3.addConstraint(Sketcher.Constraint("Tangent", 3, 1, 4, 1))
sketch3.addConstraint(Sketcher.Constraint("Tangent", 4, 2, 5, 1))
sketch3.addConstraint(Sketcher.Constraint("Tangent", 5, 2, 6, 1))
sketch3.addConstraint(Sketcher.Constraint("Tangent", 6, 2, 7, 2))
sketch3.addConstraint(Sketcher.Constraint("Coincident", 7, 1, 8, 2))
sketch3.addConstraint(Sketcher.Constraint("Tangent", 8, 1, 9, 1))
sketch3.addConstraint(Sketcher.Constraint("Tangent", 9, 2, 10, 2))
sketch3.addConstraint(Sketcher.Constraint("Tangent", 10, 1, 11, 2))
sketch3.addConstraint(Sketcher.Constraint("Tangent", 11, 1, 12, 2))
sketch3.addConstraint(Sketcher.Constraint("Tangent", 12, 1, 0, 2))
sketch3.addConstraint(Sketcher.Constraint("Horizontal", 4))
sketch3.addConstraint(Sketcher.Constraint("Horizontal", 6))
sketch3.addConstraint(Sketcher.Constraint("Equal", 2, 8))
sketch3.addConstraint(Sketcher.Constraint("PointOnObject", 0, 1, -2))
sketch3.addConstraint(Sketcher.Constraint("Horizontal", 11, 3, 10, 1))
sketch3.addConstraint(Sketcher.Constraint("Vertical", 2, 3, 8, 3))
sketch3.addConstraint(Sketcher.Constraint("Vertical", 3, 1, 6, 2))
sketch3.addConstraint(Sketcher.Constraint("Vertical", 2, 1, 7, 1))
sketch3.addConstraint(Sketcher.Constraint("Radius", 1, 15.0))
sketch3.addConstraint(Sketcher.Constraint("Radius", 2, 10.0))
sketch3.addConstraint(Sketcher.Constraint("Radius", 5, 12.0))
sketch3.addConstraint(Sketcher.Constraint("Radius", 9, 200.000002))
sketch3.addConstraint(Sketcher.Constraint("Radius", 11, 30.0))
sketch3.addConstraint(Sketcher.Constraint("DistanceX", 4, 2, 4, 1, 5.0))
sketch3.addConstraint(Sketcher.Constraint("DistanceX", 0, 3, 2, 3, 57.000001))
sketch3.addConstraint(Sketcher.Constraint("DistanceX", 3, 3, 2, 3, 15.000001))
sketch3.addConstraint(Sketcher.Constraint("DistanceY", 5, 3, 2, 3, 30.0))
sketch3.addConstraint(Sketcher.Constraint("DistanceY", 7, 3, 3, 3, 54.0))
sketch3.addConstraint(Sketcher.Constraint("DistanceY", 8, 3, 5, 3, 30.0))
sketch3.addConstraint(Sketcher.Constraint("DistanceX", 2, 3, 11, 3, 43.0))
sketch3.addConstraint(Sketcher.Constraint("DistanceY", 2, 3, 11, 3, 120.0))
sketch3.addConstraint(Sketcher.Constraint("Radius", 0, 50.000004))
sketch3.addConstraint(Sketcher.Constraint("Radius", 10, 30.000067))
sketch3.addConstraint(Sketcher.Constraint("Radius", 12, 199.999994))
sketch3.addConstraint(Sketcher.Constraint("DistanceY", 2, 1, 0, 1, 18.1798))
sketch3.addConstraint(Sketcher.Constraint("DistanceY", 0, 3, -1, 1, 34.393331))
pad3 = body3.newObject("PartDesign::Pad", "Pad002")
pad3.Profile = sketch3
pad3.Length = 1.2
pad3.Midplane = True

doc.recompute()
